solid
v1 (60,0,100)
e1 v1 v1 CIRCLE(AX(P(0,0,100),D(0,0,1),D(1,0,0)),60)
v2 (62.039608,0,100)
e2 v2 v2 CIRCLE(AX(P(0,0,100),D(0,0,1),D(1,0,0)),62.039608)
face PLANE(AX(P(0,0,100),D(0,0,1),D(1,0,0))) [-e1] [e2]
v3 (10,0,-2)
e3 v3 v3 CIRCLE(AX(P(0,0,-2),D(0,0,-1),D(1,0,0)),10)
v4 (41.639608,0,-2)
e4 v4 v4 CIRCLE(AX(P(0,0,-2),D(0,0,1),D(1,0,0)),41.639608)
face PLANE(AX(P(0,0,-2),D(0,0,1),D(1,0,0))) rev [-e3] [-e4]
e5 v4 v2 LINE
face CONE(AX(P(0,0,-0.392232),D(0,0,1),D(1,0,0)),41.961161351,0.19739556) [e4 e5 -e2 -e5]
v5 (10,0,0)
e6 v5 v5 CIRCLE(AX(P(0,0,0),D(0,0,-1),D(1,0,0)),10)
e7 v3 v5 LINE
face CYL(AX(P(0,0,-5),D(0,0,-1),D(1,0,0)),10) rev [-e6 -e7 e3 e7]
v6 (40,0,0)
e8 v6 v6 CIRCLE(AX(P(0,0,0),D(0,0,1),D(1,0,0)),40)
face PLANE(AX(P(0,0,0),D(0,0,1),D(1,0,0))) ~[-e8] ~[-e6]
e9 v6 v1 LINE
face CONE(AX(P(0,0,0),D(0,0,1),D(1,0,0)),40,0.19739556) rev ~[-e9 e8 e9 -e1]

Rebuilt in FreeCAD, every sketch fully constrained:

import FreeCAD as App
import Part
import Sketcher
from FreeCAD import Vector


def faces_at(feature, points):
    """Names of the faces that lie closest to the given points."""
    faces = feature.Shape.Faces
    near = lambda p: min(range(len(faces)), key=lambda i: faces[i].distToShape(Part.Vertex(*p))[0])
    return sorted({f"Face{near(p) + 1}" for p in points})


def add_polygon(sketch, points):
    """Adds a closed chain of lines whose ends are joined by coincident constraints."""
    first, n = sketch.GeometryCount, len(points)
    for a, b in zip(points, points[1:] + points[:1]):
        sketch.addGeometry(Part.LineSegment(App.Vector(*a, 0), App.Vector(*b, 0)), False)
    for i in range(n):
        sketch.addConstraint(Sketcher.Constraint("Coincident", first + i, 2, first + (i + 1) % n, 1))

doc = App.newDocument("Part")
params = doc.addObject("Spreadsheet::Sheet", "Params")
for row, (alias, value) in enumerate([
    ("sketch1_diameter", "20 mm"),
    ("pad1_length", "10 mm"),
    ("sketch2_width", "40 mm"),
    ("sketch2_width2", "60 mm"),
    ("sketch2_height", "100 mm"),
    ("revolution_angle", "360 deg"),
    ("thickness_wall", "2 mm"),
], start=1):
    params.set(f"A{row}", alias)
    params.set(f"B{row}", "=" + value)
    params.setAlias(f"B{row}", alias)

body = doc.addObject("PartDesign::Body", "Body")

# Sketch on XY plane
sketch1 = body.newObject("Sketcher::SketchObject", "Sketch")
sketch1.AttachmentSupport = (doc.getObject("XY_Plane"), [""])
sketch1.MapMode = "FlatFace"
sketch1.AttachmentOffset = App.Placement(Vector(0, 0, -5), App.Rotation())
sketch1.addGeometry(Part.Circle(Vector(0, 0, 0), Vector(0, 0, 1), 10), False)
sketch1.addConstraint([
    Sketcher.Constraint("Coincident", 0, 3, -1, 1),
    Sketcher.Constraint("Diameter", 0, 20.0),
])
sketch1.setExpression("Constraints[1]", "Params.sketch1_diameter")
pad1 = body.newObject("PartDesign::Pad", "Pad")
pad1.Profile = sketch1
pad1.setExpression("Length", "Params.pad1_length")
body2 = doc.addObject("PartDesign::Body", "Body001")

# Sketch on XZ plane
sketch2 = body2.newObject("Sketcher::SketchObject", "Sketch001")
sketch2.AttachmentSupport = (doc.getObject("XZ_Plane001"), [""])
sketch2.MapMode = "FlatFace"
add_polygon(sketch2, [(0, 0), (40, 0), (60, 100), (0, 100)])  # lines 0-3
sketch2.addConstraint([
    Sketcher.Constraint("Horizontal", 0),
    Sketcher.Constraint("Horizontal", 2),
    Sketcher.Constraint("Vertical", 3),
    Sketcher.Constraint("Coincident", 3, 2, -1, 1),
    Sketcher.Constraint("DistanceX", 0, 1, 0, 2, 40.0),
    Sketcher.Constraint("DistanceX", 2, 2, 2, 1, 60.0),
    Sketcher.Constraint("DistanceY", 3, 2, 3, 1, 100.0),
])
sketch2.setExpression("Constraints[8]", "Params.sketch2_width")
sketch2.setExpression("Constraints[9]", "Params.sketch2_width2")
sketch2.setExpression("Constraints[10]", "Params.sketch2_height")
revolution = body2.newObject("PartDesign::Revolution", "Revolution")
revolution.Profile = sketch2
revolution.ReferenceAxis = (sketch2, ["V_Axis"])
revolution.setExpression("Angle", "Params.revolution_angle")
doc.recompute()

thickness = body2.newObject("PartDesign::Thickness", "Thickness")
thickness.Base = (revolution, faces_at(revolution, [(0, 0, 100)]))
thickness.setExpression("Value", "Params.thickness_wall")
thickness.Reversed = False
thickness.Join = "Intersection"
doc.recompute()

boolean = body2.newObject("PartDesign::Boolean", "Boolean")
boolean.Type = "Cut"
boolean.addObjects([body])

doc.recompute()
